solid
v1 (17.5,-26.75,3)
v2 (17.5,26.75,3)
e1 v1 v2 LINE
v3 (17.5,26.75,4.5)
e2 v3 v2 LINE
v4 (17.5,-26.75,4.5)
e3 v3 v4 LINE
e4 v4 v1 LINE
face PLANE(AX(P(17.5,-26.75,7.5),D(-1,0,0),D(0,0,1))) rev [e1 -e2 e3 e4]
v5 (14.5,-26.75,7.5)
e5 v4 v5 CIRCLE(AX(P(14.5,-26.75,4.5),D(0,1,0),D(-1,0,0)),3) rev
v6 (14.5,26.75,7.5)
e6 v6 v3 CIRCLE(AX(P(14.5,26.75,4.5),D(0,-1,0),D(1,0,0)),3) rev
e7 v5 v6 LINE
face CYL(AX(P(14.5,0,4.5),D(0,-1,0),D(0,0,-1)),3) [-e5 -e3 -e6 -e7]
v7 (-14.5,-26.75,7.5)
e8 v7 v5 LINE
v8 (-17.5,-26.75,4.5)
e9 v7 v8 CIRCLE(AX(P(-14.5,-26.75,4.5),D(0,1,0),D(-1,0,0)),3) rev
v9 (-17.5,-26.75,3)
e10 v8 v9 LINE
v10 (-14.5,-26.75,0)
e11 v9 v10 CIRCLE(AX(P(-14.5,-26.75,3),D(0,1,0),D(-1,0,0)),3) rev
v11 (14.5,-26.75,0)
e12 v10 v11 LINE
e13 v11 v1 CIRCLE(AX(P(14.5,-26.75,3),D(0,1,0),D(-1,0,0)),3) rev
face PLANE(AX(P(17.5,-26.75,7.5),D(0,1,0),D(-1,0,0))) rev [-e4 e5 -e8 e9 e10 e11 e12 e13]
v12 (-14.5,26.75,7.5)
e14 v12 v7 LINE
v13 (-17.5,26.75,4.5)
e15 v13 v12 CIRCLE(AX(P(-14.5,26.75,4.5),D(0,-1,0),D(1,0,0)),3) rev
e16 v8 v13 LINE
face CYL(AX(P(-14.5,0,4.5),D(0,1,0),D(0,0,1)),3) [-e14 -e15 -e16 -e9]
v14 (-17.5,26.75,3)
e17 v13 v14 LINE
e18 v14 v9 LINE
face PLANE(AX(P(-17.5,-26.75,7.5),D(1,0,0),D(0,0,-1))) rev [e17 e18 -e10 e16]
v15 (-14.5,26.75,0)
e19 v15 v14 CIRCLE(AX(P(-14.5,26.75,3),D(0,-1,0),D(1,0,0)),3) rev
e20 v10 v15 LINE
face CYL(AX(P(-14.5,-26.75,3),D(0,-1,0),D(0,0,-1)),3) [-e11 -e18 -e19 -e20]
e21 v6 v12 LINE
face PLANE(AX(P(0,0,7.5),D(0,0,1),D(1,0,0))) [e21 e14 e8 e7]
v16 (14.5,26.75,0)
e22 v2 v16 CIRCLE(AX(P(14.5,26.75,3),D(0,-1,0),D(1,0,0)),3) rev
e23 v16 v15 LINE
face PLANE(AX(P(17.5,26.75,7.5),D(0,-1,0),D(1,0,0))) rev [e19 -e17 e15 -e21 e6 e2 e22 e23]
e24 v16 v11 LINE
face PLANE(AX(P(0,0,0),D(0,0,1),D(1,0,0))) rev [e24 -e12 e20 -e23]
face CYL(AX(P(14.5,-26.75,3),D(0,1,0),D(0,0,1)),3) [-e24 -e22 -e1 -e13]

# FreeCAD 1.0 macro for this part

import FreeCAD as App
import Part
import Sketcher
Q = App.Units.Quantity


def edges_at(feature, points):
    """Names of the edges that pass closest to the given points."""
    edges = feature.Shape.Edges
    near = lambda p: min(range(len(edges)), key=lambda i: edges[i].distToShape(Part.Vertex(*p))[0])
    return sorted({f"Edge{near(p) + 1}" for p in points})

doc = App.newDocument("Part")
body = doc.addObject("PartDesign::Body", "Body")

sketch1 = body.newObject("Sketcher::SketchObject", "Sketch")
sketch1.AttachmentSupport = (doc.getObject("XY_Plane"), [""])
sketch1.MapMode = "FlatFace"
sketch1.addGeometry([
    Part.LineSegment(App.Vector(-18, 27, 0), App.Vector(-18, -27, 0)),
    Part.LineSegment(App.Vector(-18, -27, 0), App.Vector(18, -27, 0)),
    Part.LineSegment(App.Vector(18, -27, 0), App.Vector(18, 27, 0)),
    Part.LineSegment(App.Vector(18, 27, 0), App.Vector(-18, 27, 0)),
], False)
sketch1.addConstraint([
    Sketcher.Constraint("Coincident", 0, 2, 1, 1),
    Sketcher.Constraint("Coincident", 1, 2, 2, 1),
    Sketcher.Constraint("Coincident", 2, 2, 3, 1),
    Sketcher.Constraint("Coincident", 3, 2, 0, 1),
    Sketcher.Constraint("Vertical", 0),
    Sketcher.Constraint("Horizontal", 1),
    Sketcher.Constraint("Vertical", 2),
    Sketcher.Constraint("Horizontal", 3),
    Sketcher.Constraint("Symmetric", 0, 2, 2, 2, -1, 1),
    Sketcher.Constraint("DistanceX", 1, 1, 1, 2, Q("35 mm")),
    Sketcher.Constraint("DistanceY", 0, 2, 0, 1, Q("53.5 mm")),
])
pad1 = body.newObject("PartDesign::Pad", "Pad")
pad1.Profile = sketch1
pad1.Length = 7.5
doc.recompute()

fillet = body.newObject("PartDesign::Fillet", "Fillet")
fillet.Base = (pad1, edges_at(pad1, [
    (17.5, 0, 7.5),
    (-17.5, 0, 7.5),
    (17.5, 0, 0),
    (-17.5, 0, 0),
]))
fillet.Radius = 3

doc.recompute()
